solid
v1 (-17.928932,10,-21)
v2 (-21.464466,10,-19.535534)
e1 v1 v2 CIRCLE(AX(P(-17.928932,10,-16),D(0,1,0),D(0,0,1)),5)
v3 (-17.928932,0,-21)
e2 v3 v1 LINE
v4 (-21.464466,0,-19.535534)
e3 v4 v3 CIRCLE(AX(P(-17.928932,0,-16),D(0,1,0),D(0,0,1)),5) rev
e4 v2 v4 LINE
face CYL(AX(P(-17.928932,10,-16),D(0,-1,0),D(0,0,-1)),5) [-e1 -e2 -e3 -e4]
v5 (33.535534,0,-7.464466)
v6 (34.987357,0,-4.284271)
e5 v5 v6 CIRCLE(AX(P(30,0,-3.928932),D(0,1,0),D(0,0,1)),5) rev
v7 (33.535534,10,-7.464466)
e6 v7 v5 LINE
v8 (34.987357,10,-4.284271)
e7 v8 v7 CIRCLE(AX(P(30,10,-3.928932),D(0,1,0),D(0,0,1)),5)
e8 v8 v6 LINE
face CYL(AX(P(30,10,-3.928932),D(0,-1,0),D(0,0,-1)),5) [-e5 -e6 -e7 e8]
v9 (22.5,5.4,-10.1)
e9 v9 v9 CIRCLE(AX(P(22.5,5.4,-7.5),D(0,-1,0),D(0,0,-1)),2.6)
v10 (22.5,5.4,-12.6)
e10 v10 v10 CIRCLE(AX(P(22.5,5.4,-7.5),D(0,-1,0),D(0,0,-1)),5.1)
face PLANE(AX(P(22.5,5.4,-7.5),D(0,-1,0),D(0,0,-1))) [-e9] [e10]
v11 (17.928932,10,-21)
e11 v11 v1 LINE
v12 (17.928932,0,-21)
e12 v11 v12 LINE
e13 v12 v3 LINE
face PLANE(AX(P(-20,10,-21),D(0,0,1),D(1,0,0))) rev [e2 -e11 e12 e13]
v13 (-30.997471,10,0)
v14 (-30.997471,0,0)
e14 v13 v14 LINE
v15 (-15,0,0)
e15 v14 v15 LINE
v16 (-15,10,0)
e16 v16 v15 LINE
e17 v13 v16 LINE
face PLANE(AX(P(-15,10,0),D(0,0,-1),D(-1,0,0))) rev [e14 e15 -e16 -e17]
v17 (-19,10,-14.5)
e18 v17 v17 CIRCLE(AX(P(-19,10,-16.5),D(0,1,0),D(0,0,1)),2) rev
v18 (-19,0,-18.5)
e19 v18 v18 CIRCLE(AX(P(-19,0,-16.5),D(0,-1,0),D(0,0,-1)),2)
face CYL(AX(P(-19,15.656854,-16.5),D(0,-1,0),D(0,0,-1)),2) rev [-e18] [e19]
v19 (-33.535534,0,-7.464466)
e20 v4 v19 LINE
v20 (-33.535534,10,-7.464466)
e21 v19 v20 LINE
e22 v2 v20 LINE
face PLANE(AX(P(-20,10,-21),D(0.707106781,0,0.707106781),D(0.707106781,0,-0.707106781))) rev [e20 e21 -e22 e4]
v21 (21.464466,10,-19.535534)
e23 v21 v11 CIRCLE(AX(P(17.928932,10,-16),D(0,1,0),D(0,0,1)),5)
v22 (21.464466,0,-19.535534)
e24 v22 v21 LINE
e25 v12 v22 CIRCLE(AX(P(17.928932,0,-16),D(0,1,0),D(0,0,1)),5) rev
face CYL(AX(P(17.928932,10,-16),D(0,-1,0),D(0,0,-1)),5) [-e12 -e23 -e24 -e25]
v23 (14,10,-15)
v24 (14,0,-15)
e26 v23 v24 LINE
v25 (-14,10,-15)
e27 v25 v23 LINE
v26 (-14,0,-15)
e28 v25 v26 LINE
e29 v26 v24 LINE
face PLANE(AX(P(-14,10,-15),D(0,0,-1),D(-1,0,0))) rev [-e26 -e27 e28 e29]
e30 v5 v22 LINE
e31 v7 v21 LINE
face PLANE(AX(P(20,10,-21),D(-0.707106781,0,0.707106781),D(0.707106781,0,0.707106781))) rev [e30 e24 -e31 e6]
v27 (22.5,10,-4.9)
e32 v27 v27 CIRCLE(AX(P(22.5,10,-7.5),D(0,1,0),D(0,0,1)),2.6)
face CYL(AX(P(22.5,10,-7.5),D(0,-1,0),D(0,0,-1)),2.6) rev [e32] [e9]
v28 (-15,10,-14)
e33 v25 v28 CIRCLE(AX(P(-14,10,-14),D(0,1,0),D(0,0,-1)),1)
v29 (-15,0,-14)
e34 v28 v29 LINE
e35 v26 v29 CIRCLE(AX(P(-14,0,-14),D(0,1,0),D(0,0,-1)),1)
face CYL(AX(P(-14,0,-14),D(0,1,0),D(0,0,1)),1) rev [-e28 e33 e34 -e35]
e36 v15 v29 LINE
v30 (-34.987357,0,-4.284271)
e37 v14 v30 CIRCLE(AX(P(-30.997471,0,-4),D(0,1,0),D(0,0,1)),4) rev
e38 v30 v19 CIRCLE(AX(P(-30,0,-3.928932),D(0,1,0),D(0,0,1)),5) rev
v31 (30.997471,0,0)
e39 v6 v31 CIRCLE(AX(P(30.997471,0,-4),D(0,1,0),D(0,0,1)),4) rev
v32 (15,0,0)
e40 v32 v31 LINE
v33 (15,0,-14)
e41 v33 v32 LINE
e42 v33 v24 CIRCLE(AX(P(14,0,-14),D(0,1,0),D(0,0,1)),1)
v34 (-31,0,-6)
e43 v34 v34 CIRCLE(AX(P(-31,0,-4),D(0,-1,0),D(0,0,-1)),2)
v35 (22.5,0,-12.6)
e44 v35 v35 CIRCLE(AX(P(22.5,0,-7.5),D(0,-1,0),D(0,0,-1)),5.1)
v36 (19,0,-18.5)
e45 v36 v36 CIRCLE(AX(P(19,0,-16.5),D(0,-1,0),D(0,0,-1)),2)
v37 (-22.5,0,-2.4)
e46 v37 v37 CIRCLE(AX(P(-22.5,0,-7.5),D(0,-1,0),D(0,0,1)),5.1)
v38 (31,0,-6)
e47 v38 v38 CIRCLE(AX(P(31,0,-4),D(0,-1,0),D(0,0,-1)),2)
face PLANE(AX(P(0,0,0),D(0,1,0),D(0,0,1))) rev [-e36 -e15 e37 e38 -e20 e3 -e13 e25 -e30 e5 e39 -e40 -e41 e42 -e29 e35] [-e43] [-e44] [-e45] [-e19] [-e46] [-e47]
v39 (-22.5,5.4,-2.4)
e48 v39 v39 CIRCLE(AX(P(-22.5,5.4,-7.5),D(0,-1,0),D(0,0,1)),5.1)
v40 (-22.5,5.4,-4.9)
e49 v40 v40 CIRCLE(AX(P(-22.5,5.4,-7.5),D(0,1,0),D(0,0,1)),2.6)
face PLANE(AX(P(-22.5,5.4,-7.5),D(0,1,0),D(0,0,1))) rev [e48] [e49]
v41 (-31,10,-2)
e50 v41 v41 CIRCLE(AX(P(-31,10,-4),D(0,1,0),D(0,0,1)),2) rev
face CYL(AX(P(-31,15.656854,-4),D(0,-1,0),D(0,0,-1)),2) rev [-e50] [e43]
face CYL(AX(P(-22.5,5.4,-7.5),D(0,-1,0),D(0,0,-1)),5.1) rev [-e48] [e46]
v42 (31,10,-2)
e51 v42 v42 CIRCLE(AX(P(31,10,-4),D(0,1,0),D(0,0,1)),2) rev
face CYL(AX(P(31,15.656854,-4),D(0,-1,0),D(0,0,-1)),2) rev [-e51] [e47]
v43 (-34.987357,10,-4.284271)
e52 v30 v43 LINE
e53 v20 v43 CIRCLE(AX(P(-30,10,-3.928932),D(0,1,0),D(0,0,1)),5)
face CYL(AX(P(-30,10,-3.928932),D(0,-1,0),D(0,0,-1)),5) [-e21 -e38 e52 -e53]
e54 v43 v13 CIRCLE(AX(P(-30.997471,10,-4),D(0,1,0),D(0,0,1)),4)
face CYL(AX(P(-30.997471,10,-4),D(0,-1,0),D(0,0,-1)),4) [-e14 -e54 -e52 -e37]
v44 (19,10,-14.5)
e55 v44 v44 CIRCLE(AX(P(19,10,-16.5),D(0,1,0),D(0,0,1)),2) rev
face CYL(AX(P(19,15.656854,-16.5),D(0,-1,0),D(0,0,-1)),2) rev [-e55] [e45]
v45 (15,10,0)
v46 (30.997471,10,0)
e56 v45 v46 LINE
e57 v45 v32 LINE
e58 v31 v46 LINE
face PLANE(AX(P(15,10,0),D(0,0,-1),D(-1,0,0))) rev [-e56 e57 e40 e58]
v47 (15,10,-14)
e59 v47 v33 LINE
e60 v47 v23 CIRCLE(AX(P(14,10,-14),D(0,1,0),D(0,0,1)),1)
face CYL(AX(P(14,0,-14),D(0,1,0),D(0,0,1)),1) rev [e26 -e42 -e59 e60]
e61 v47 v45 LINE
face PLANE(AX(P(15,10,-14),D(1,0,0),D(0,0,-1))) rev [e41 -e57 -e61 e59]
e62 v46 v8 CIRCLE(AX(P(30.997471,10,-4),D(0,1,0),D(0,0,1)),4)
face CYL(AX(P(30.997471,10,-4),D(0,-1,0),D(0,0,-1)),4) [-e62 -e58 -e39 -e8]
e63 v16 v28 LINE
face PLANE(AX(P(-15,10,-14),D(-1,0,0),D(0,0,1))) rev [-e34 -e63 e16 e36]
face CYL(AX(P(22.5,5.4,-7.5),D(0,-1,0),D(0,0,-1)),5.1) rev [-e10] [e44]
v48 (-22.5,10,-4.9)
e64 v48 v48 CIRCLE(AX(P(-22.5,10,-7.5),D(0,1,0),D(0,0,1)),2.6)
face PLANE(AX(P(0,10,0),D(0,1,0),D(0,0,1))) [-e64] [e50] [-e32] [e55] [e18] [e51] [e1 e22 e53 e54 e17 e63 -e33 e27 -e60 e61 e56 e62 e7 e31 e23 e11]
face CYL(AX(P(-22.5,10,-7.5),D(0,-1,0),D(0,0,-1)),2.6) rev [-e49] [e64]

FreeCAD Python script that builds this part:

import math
import FreeCAD as App
import Part
import Sketcher

V = App.Vector


def edges_at(feature, points):
    """Names of the edges that pass closest to the given points."""
    edges = feature.Shape.Edges
    near = lambda p: min(range(len(edges)), key=lambda i: edges[i].distToShape(Part.Vertex(*p))[0])
    return sorted({f"Edge{near(p) + 1}" for p in points})


def add_polygon(sketch, points):
    """Adds a closed chain of lines whose ends are joined by coincident constraints."""
    first, n = sketch.GeometryCount, len(points)
    for a, b in zip(points, points[1:] + points[:1]):
        sketch.addGeometry(Part.LineSegment(App.Vector(*a, 0), App.Vector(*b, 0)), False)
    for i in range(n):
        sketch.addConstraint(Sketcher.Constraint("Coincident", first + i, 2, first + (i + 1) % n, 1))

doc = App.newDocument("Part")
body = doc.addObject("PartDesign::Body", "Body")

sketch1 = body.newObject("Sketcher::SketchObject", "Sketch")
sketch1.AttachmentSupport = (doc.getObject("XZ_Plane"), [""])
sketch1.MapMode = "FlatFace"
add_polygon(sketch1, [(20, -21), (-20, -21), (-35, -6), (-35, 0), (-15, 0), (-15, -14), (-14, -15), (14, -15), (15, -14), (15, 0), (35, 0), (35, -6)])
sketch1.addGeometry(Part.Circle(V(22.5, -7.5, 0), V(0, 0, 1), 2.6), False)
sketch1.addGeometry(Part.Circle(V(-22.5, -7.5, 0), V(0, 0, 1), 2.6), False)
sketch1.addConstraint(Sketcher.Constraint("Horizontal", 0))
sketch1.addConstraint(Sketcher.Constraint("Vertical", 2))
sketch1.addConstraint(Sketcher.Constraint("Horizontal", 3))
sketch1.addConstraint(Sketcher.Constraint("Vertical", 4))
sketch1.addConstraint(Sketcher.Constraint("Horizontal", 6))
sketch1.addConstraint(Sketcher.Constraint("Vertical", 8))
sketch1.addConstraint(Sketcher.Constraint("Horizontal", 9))
sketch1.addConstraint(Sketcher.Constraint("Vertical", 10))
sketch1.addConstraint(Sketcher.Constraint("Equal", 12, 13))
sketch1.addConstraint(Sketcher.Constraint("Symmetric", 3, 2, 8, 2, -1, 1))
sketch1.addConstraint(Sketcher.Constraint("Symmetric", 12, 3, 13, 3, -2))
sketch1.addConstraint(Sketcher.Constraint("Symmetric", 2, 2, 9, 2, -2))
sketch1.addConstraint(Sketcher.Constraint("Parallel", 1, 5))
sketch1.addConstraint(Sketcher.Constraint("Perpendicular", 5, 7))
sketch1.addConstraint(Sketcher.Constraint("Parallel", 7, 11))
sketch1.addConstraint(Sketcher.Constraint("Horizontal", 4, 2, 7, 2))
sketch1.addConstraint(Sketcher.Constraint("Horizontal", 1, 2, 10, 2))
sketch1.addConstraint(Sketcher.Constraint("Equal", 5, 7))
sketch1.addConstraint(Sketcher.Constraint("Diameter", 12, 5.2))
sketch1.addConstraint(Sketcher.Constraint("DistanceX", 0, 2, 0, 1, 40.0))
sketch1.addConstraint(Sketcher.Constraint("DistanceX", 3, 1, 3, 2, 20.0))
sketch1.addConstraint(Sketcher.Constraint("DistanceX", 6, 1, 6, 2, 28.0))
sketch1.addConstraint(Sketcher.Constraint("DistanceY", 2, 1, 2, 2, 6.0))
sketch1.addConstraint(Sketcher.Constraint("DistanceY", 4, 2, 4, 1, 14.0))
sketch1.addConstraint(Sketcher.Constraint("DistanceY", 0, 2, -1, 1, 21.0))
sketch1.addConstraint(Sketcher.Constraint("DistanceX", 13, 3, 12, 3, 45.0))
sketch1.addConstraint(Sketcher.Constraint("DistanceY", 12, 3, -1, 1, 7.5))
pad1 = body.newObject("PartDesign::Pad", "Pad")
pad1.Profile = sketch1
pad1.Length = 10
pad1.Reversed = True

sketch2 = body.newObject("Sketcher::SketchObject", "Sketch001")
sketch2.AttachmentSupport = (doc.getObject("XZ_Plane"), [""])
sketch2.MapMode = "FlatFace"
sketch2.addGeometry(Part.Circle(V(22.5, -7.5, 0), V(0, 0, 1), 5.1), False)
sketch2.addGeometry(Part.Circle(V(-22.5, -7.5, 0), V(0, 0, 1), 5.1), False)
sketch2.addConstraint(Sketcher.Constraint("Equal", 0, 1))
sketch2.addConstraint(Sketcher.Constraint("Symmetric", 0, 3, 1, 3, -2))
sketch2.addConstraint(Sketcher.Constraint("Diameter", 0, 10.2))
sketch2.addConstraint(Sketcher.Constraint("DistanceX", 1, 3, 0, 3, 45.0))
sketch2.addConstraint(Sketcher.Constraint("DistanceY", 0, 3, -1, 1, 7.5))
pocket1 = body.newObject("PartDesign::Pocket", "Pocket")
pocket1.Profile = sketch2
pocket1.Length = 5.4

sketch3 = body.newObject("Sketcher::SketchObject", "Sketch002")
sketch3.AttachmentSupport = (doc.getObject("XZ_Plane"), [""])
sketch3.MapMode = "FlatFace"
sketch3.addGeometry(Part.Circle(V(19, -16.5, 0), V(0, 0, 1), 2), False)
sketch3.addGeometry(Part.Circle(V(-19, -16.5, 0), V(0, 0, 1), 2), False)
sketch3.addGeometry(Part.Circle(V(-31, -4, 0), V(0, 0, 1), 2), False)
sketch3.addGeometry(Part.Circle(V(31, -4, 0), V(0, 0, 1), 2), False)
sketch3.addConstraint(Sketcher.Constraint("Equal", 0, 1))
sketch3.addConstraint(Sketcher.Constraint("Equal", 1, 2))
sketch3.addConstraint(Sketcher.Constraint("Equal", 2, 3))
sketch3.addConstraint(Sketcher.Constraint("Symmetric", 0, 3, 1, 3, -2))
sketch3.addConstraint(Sketcher.Constraint("Symmetric", 2, 3, 3, 3, -2))
sketch3.addConstraint(Sketcher.Constraint("Diameter", 0, 4.0))
sketch3.addConstraint(Sketcher.Constraint("DistanceX", -1, 1, 0, 3, 19.0))
sketch3.addConstraint(Sketcher.Constraint("DistanceX", 2, 3, -1, 1, 31.0))
sketch3.addConstraint(Sketcher.Constraint("DistanceY", 2, 3, -1, 1, 4.0))
sketch3.addConstraint(Sketcher.Constraint("DistanceY", 0, 3, -1, 1, 16.5))
pocket2 = body.newObject("PartDesign::Pocket", "Pocket001")
pocket2.Profile = sketch3
pocket2.Length = 10

sketch4 = body.newObject("Sketcher::SketchObject", "Sketch003")
sketch4.AttachmentSupport = (doc.getObject("XZ_Plane"), [""])
sketch4.MapMode = "FlatFace"
sketch4.AttachmentOffset = App.Placement(V(0, 0, -10), App.Rotation())
sketch4.addGeometry(Part.LineSegment(V(14, -14, 0), V(15, -14, 0)), False)
sketch4.addGeometry(Part.ArcOfCircle(Part.Circle(V(14, -14, 0), V(0, 0, 1), 1), math.radians(-90), math.radians(0)), False)
sketch4.addGeometry(Part.LineSegment(V(14, -15, 0), V(14, -14, 0)), False)
sketch4.addGeometry(Part.LineSegment(V(-14, -14, 0), V(-14, -15, 0)), False)
sketch4.addGeometry(Part.ArcOfCircle(Part.Circle(V(-14, -14, 0), V(0, 0, 1), 1), math.radians(-180), math.radians(-90)), False)
sketch4.addGeometry(Part.LineSegment(V(-15, -14, 0), V(-14, -14, 0)), False)
sketch4.addConstraint(Sketcher.Constraint("Coincident", 0, 2, 1, 2))
sketch4.addConstraint(Sketcher.Constraint("Coincident", 1, 1, 2, 1))
sketch4.addConstraint(Sketcher.Constraint("Coincident", 2, 2, 0, 1))
sketch4.addConstraint(Sketcher.Constraint("Coincident", 3, 2, 4, 2))
sketch4.addConstraint(Sketcher.Constraint("Coincident", 4, 1, 5, 1))
sketch4.addConstraint(Sketcher.Constraint("Coincident", 5, 2, 3, 1))
sketch4.addConstraint(Sketcher.Constraint("Horizontal", 0))
sketch4.addConstraint(Sketcher.Constraint("Vertical", 2))
sketch4.addConstraint(Sketcher.Constraint("Vertical", 3))
sketch4.addConstraint(Sketcher.Constraint("Horizontal", 5))
sketch4.addConstraint(Sketcher.Constraint("Coincident", 2, 2, 1, 3))
sketch4.addConstraint(Sketcher.Constraint("Coincident", 5, 2, 4, 3))
sketch4.addConstraint(Sketcher.Constraint("Equal", 1, 4))
sketch4.addConstraint(Sketcher.Constraint("Symmetric", 1, 3, 4, 3, -2))
sketch4.addConstraint(Sketcher.Constraint("Radius", 1, 1.0))
sketch4.addConstraint(Sketcher.Constraint("DistanceX", -1, 1, 1, 3, 14.0))
sketch4.addConstraint(Sketcher.Constraint("DistanceY", 1, 3, -1, 1, 14.0))
pocket3 = body.newObject("PartDesign::Pocket", "Pocket002")
pocket3.Profile = sketch4
pocket3.Type = "ThroughAll"
pocket3.Reversed = True
doc.recompute()

fillet = body.newObject("PartDesign::Fillet", "Fillet")
fillet.Base = (pocket3, edges_at(pocket3, [
    (-35, 5, -6),
    (-20, 5, -21),
    (20, 5, -21),
    (35, 5, -6),
]))
fillet.Radius = 5
doc.recompute()

fillet2 = body.newObject("PartDesign::Fillet", "Fillet001")
fillet2.Base = (fillet, edges_at(fillet, [(35, 5, 0), (-35, 5, 0)]))
fillet2.Radius = 4

doc.recompute()
